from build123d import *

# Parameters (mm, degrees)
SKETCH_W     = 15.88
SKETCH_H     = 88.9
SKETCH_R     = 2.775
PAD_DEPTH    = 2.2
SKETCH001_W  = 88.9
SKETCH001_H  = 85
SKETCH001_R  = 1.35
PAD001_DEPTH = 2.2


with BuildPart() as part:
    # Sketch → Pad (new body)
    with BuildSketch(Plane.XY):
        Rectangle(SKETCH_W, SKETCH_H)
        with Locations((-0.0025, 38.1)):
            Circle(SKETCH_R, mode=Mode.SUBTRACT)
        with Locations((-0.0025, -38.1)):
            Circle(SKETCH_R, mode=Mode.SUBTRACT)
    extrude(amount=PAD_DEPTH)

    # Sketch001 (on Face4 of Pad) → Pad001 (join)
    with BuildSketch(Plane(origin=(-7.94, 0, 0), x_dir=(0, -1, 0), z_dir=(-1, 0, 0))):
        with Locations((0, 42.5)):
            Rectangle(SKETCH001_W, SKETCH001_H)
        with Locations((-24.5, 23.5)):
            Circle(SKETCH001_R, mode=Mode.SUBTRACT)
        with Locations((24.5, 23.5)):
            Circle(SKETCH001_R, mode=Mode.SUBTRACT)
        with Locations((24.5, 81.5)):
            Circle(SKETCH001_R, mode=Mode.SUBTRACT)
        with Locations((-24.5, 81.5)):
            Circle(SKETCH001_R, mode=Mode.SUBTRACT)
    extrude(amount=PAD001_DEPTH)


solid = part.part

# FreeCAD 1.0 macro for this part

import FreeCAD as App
import Part
import Sketcher


def add_polygon(sketch, points):
    """Adds a closed chain of lines whose ends are joined by coincident constraints."""
    first, n = sketch.GeometryCount, len(points)
    for a, b in zip(points, points[1:] + points[:1]):
        sketch.addGeometry(Part.LineSegment(App.Vector(*a, 0), App.Vector(*b, 0)), False)
    for i in range(n):
        sketch.addConstraint(Sketcher.Constraint("Coincident", first + i, 2, first + (i + 1) % n, 1))

doc = App.newDocument("Part")
body = doc.addObject("PartDesign::Body", "Body")

sketch1 = body.newObject("Sketcher::SketchObject", "Sketch")
sketch1.AttachmentSupport = (doc.getObject("XY_Plane"), [""])
sketch1.MapMode = "FlatFace"
add_polygon(sketch1, [(-7.94, 44.45), (-7.94, -44.45), (7.94, -44.45), (7.94, 44.45)])
sketch1.addGeometry(Part.Circle(App.Vector(-0.0025, -38.1, 0), App.Vector(0, 0, 1), 2.775), False)
sketch1.addGeometry(Part.Circle(App.Vector(-0.0025, 38.1, 0), App.Vector(0, 0, 1), 2.775), False)
sketch1.addConstraint([
    Sketcher.Constraint("Vertical", 0),
    Sketcher.Constraint("Horizontal", 1),
    Sketcher.Constraint("Vertical", 2),
    Sketcher.Constraint("Horizontal", 3),
    Sketcher.Constraint("Equal", 4, 5),
    Sketcher.Constraint("Symmetric", 0, 2, 2, 2, -1, 1),
    Sketcher.Constraint("Symmetric", 4, 3, 5, 3, -1),
    Sketcher.Constraint("Diameter", 4, 5.55),
    Sketcher.Constraint("DistanceY", 0, 2, 0, 1, 88.9),
    Sketcher.Constraint("DistanceX", 1, 1, 1, 2, 15.88),
    Sketcher.Constraint("DistanceY", 4, 3, -1, 1, 38.1),
    Sketcher.Constraint("DistanceX", 4, 3, -1, 1, 0.0025),
])
pad1 = body.newObject("PartDesign::Pad", "Pad")
pad1.Profile = sketch1
pad1.Length = 2.2

sketch2 = body.newObject("Sketcher::SketchObject", "Sketch001")
sketch2.AttachmentSupport = (doc.getObject("YZ_Plane"), [""])
sketch2.MapMode = "FlatFace"
sketch2.AttachmentOffset = App.Placement(App.Vector(0, 0, -7.94), App.Rotation())
add_polygon(sketch2, [(44.45, 85), (44.45, 0), (-44.45, 0), (-44.45, 85)])
sketch2.addGeometry(Part.Circle(App.Vector(24.5, 23.5, 0), App.Vector(0, 0, 1), 1.35), False)
sketch2.addGeometry(Part.Circle(App.Vector(-24.5, 23.5, 0), App.Vector(0, 0, 1), 1.35), False)
sketch2.addGeometry(Part.Circle(App.Vector(24.5, 81.5, 0), App.Vector(0, 0, 1), 1.35), False)
sketch2.addGeometry(Part.Circle(App.Vector(-24.5, 81.5, 0), App.Vector(0, 0, 1), 1.35), False)
sketch2.addConstraint([
    Sketcher.Constraint("Vertical", 0),
    Sketcher.Constraint("Horizontal", 1),
    Sketcher.Constraint("Vertical", 2),
    Sketcher.Constraint("Horizontal", 3),
    Sketcher.Constraint("Equal", 4, 5),
    Sketcher.Constraint("Equal", 5, 6),
    Sketcher.Constraint("Equal", 6, 7),
    Sketcher.Constraint("Symmetric", 0, 2, 1, 2, -1, 1),
    Sketcher.Constraint("Symmetric", 4, 3, 5, 3, -2),
    Sketcher.Constraint("Symmetric", 6, 3, 7, 3, -2),
    Sketcher.Constraint("Vertical", 4, 3, 6, 3),
    Sketcher.Constraint("Diameter", 4, 2.7),
    Sketcher.Constraint("DistanceY", 0, 2, 0, 1, 85.0),
    Sketcher.Constraint("DistanceX", 1, 2, 1, 1, 88.9),
    Sketcher.Constraint("DistanceX", 5, 3, 4, 3, 49.0),
    Sketcher.Constraint("DistanceY", 4, 3, 6, 3, 58.0),
    Sketcher.Constraint("DistanceY", -1, 1, 4, 3, 23.5),
])
pad2 = body.newObject("PartDesign::Pad", "Pad001")
pad2.Profile = sketch2
pad2.Length = 2.2
pad2.Reversed = True

doc.recompute()
